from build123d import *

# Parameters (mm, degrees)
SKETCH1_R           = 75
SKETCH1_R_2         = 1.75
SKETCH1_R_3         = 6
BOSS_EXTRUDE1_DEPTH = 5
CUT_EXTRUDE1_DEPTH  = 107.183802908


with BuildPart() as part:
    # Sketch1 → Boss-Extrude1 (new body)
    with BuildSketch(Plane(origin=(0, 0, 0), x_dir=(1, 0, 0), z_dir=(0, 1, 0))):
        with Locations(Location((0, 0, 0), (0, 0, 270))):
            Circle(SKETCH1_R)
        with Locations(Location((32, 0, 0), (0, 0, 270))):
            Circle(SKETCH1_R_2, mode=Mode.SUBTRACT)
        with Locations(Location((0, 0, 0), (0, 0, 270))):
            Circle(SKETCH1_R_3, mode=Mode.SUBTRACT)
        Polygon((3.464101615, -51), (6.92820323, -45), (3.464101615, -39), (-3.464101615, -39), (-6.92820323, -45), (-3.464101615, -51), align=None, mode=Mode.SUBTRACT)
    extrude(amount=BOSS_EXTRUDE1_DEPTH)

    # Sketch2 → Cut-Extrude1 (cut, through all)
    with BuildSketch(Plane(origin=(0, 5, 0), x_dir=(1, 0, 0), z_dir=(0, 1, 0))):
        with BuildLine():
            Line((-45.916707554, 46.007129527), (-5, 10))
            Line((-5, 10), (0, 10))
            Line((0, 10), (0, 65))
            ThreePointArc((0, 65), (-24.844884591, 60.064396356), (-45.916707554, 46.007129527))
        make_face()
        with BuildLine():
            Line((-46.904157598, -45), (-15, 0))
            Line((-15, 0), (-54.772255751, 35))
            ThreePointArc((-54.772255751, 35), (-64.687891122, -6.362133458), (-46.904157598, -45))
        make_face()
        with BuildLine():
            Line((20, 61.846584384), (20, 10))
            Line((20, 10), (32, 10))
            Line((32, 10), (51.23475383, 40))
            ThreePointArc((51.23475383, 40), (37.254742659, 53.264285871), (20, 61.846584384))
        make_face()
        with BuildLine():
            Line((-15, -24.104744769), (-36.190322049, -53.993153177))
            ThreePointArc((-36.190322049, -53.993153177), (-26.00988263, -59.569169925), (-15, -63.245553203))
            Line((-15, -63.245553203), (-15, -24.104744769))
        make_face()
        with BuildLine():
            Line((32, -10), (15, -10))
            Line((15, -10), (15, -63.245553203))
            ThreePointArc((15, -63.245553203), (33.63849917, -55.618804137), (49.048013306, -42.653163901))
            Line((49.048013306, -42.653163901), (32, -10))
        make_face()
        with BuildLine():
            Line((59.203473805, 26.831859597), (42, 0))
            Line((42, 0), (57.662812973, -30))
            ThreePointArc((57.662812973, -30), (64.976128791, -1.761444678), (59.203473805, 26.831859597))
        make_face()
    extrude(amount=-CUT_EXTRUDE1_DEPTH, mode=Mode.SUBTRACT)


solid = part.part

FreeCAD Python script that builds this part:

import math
import FreeCAD as App
import Part
import Sketcher
Q = App.Units.Quantity


def add_polygon(sketch, points):
    """Adds a closed chain of lines whose ends are joined by coincident constraints."""
    first, n = sketch.GeometryCount, len(points)
    for a, b in zip(points, points[1:] + points[:1]):
        sketch.addGeometry(Part.LineSegment(App.Vector(*a, 0), App.Vector(*b, 0)), False)
    for i in range(n):
        sketch.addConstraint(Sketcher.Constraint("Coincident", first + i, 2, first + (i + 1) % n, 1))

doc = App.newDocument("Part")
body = doc.addObject("PartDesign::Body", "Body")

sketch1 = body.newObject("Sketcher::SketchObject", "Sketch")
sketch1.AttachmentSupport = (doc.getObject("XZ_Plane"), [""])
sketch1.MapMode = "FlatFace"
sketch1.addGeometry(Part.Circle(App.Vector(0, 0, 0), App.Vector(0, 0, 1), 75), False)
sketch1.addGeometry(Part.Circle(App.Vector(0, 0, 0), App.Vector(0, 0, 1), 6), False)
add_polygon(sketch1, [(6.9, 45), (3.5, 51), (-3.5, 51), (-6.9, 45), (-3.5, 39), (3.5, 39)])
sketch1.addGeometry(Part.Circle(App.Vector(32, 0, 0), App.Vector(0, 0, 1), 1.8), False)
sketch1.addConstraint([
    Sketcher.Constraint("Horizontal", 3),
    Sketcher.Constraint("Horizontal", 6),
    Sketcher.Constraint("Coincident", 0, 3, -1, 1),
    Sketcher.Constraint("Coincident", 1, 3, -1, 1),
    Sketcher.Constraint("Symmetric", 4, 2, 7, 2, -2),
    Sketcher.Constraint("PointOnObject", 8, 3, -1),
    Sketcher.Constraint("Parallel", 2, 5),
    Sketcher.Constraint("Parallel", 4, 7),
    Sketcher.Constraint("Vertical", 3, 2, 5, 2),
    Sketcher.Constraint("Vertical", 2, 2, 6, 2),
    Sketcher.Constraint("Diameter", 0, Q("150 mm")),
    Sketcher.Constraint("Diameter", 1, Q("12 mm")),
    Sketcher.Constraint("Diameter", 8, Q("3.5 mm")),
    Sketcher.Constraint("Angle", 2, Q("120 deg")),
    Sketcher.Constraint("DistanceX", -1, 1, 8, 3, Q("32 mm")),
    Sketcher.Constraint("DistanceY", -1, 1, 2, 2, Q("51 mm")),
    Sketcher.Constraint("DistanceY", -1, 1, 4, 2, Q("45 mm")),
    Sketcher.Constraint("DistanceX", -1, 1, 2, 2, Q("3.464102 mm")),
])
pad1 = body.newObject("PartDesign::Pad", "Pad")
pad1.Profile = sketch1
pad1.Length = 5
pad1.Reversed = True

sketch2 = body.newObject("Sketcher::SketchObject", "Sketch001")
sketch2.AttachmentSupport = (doc.getObject("XZ_Plane"), [""])
sketch2.MapMode = "FlatFace"
sketch2.AttachmentOffset = App.Placement(App.Vector(0, 0, -5), App.Rotation())
sketch2.addGeometry([
    Part.LineSegment(App.Vector(-46, -46, 0), App.Vector(-5, -10, 0)),
    Part.LineSegment(App.Vector(-5, -10, 0), App.Vector(0, -10, 0)),
    Part.LineSegment(App.Vector(0, -10, 0), App.Vector(0, -65, 0)),
    Part.ArcOfCircle(Part.Circle(App.Vector(0, 0, 0), App.Vector(0, 0, 1), 65), math.radians(-135), math.radians(-90)),
    Part.LineSegment(App.Vector(-47, 45, 0), App.Vector(-15, 0, 0)),
    Part.LineSegment(App.Vector(-15, 0, 0), App.Vector(-55, -35, 0)),
    Part.ArcOfCircle(Part.Circle(App.Vector(0, 0, 0), App.Vector(0, 0, 1), 65), math.radians(136), math.radians(213)),
    Part.LineSegment(App.Vector(20, -62, 0), App.Vector(20, -10, 0)),
    Part.LineSegment(App.Vector(20, -10, 0), App.Vector(32, -10, 0)),
    Part.LineSegment(App.Vector(32, -10, 0), App.Vector(51, -40, 0)),
    Part.ArcOfCircle(Part.Circle(App.Vector(0, 0, 0), App.Vector(0, 0, 1), 65), math.radians(-72), math.radians(-38)),
    Part.LineSegment(App.Vector(-15, 24, 0), App.Vector(-36, 54, 0)),
    Part.ArcOfCircle(Part.Circle(App.Vector(0, 0, 0), App.Vector(0, 0, 1), 65), math.radians(103), math.radians(124)),
    Part.LineSegment(App.Vector(-15, 63, 0), App.Vector(-15, 24, 0)),
    Part.LineSegment(App.Vector(32, 10, 0), App.Vector(15, 10, 0)),
    Part.LineSegment(App.Vector(15, 10, 0), App.Vector(15, 63, 0)),
    Part.ArcOfCircle(Part.Circle(App.Vector(0, 0, 0), App.Vector(0, 0, 1), 65), math.radians(41), math.radians(77)),
    Part.LineSegment(App.Vector(49, 43, 0), App.Vector(32, 10, 0)),
    Part.LineSegment(App.Vector(59, -27, 0), App.Vector(42, 0, 0)),
    Part.LineSegment(App.Vector(42, 0, 0), App.Vector(58, 30, 0)),
    Part.ArcOfCircle(Part.Circle(App.Vector(0, 0, 0), App.Vector(0, 0, 1), 65), math.radians(-24), math.radians(27)),
], False)
sketch2.addConstraint([
    Sketcher.Constraint("Coincident", 0, 2, 1, 1),
    Sketcher.Constraint("Coincident", 1, 2, 2, 1),
    Sketcher.Constraint("Coincident", 2, 2, 3, 2),
    Sketcher.Constraint("Coincident", 3, 1, 0, 1),
    Sketcher.Constraint("Coincident", 4, 2, 5, 1),
    Sketcher.Constraint("Coincident", 5, 2, 6, 2),
    Sketcher.Constraint("Coincident", 6, 1, 4, 1),
    Sketcher.Constraint("Coincident", 7, 2, 8, 1),
    Sketcher.Constraint("Coincident", 8, 2, 9, 1),
    Sketcher.Constraint("Coincident", 9, 2, 10, 2),
    Sketcher.Constraint("Coincident", 10, 1, 7, 1),
    Sketcher.Constraint("Coincident", 11, 2, 12, 2),
    Sketcher.Constraint("Coincident", 12, 1, 13, 1),
    Sketcher.Constraint("Coincident", 13, 2, 11, 1),
    Sketcher.Constraint("Coincident", 14, 2, 15, 1),
    Sketcher.Constraint("Coincident", 15, 2, 16, 2),
    Sketcher.Constraint("Coincident", 16, 1, 17, 1),
    Sketcher.Constraint("Coincident", 17, 2, 14, 1),
    Sketcher.Constraint("Coincident", 18, 2, 19, 1),
    Sketcher.Constraint("Coincident", 19, 2, 20, 2),
    Sketcher.Constraint("Coincident", 20, 1, 18, 1),
    Sketcher.Constraint("Horizontal", 1),
    Sketcher.Constraint("Vertical", 2),
    Sketcher.Constraint("Vertical", 7),
    Sketcher.Constraint("Horizontal", 8),
    Sketcher.Constraint("Vertical", 13),
    Sketcher.Constraint("Horizontal", 14),
    Sketcher.Constraint("Vertical", 15),
    Sketcher.Constraint("Coincident", 3, 3, -1, 1),
    Sketcher.Constraint("Coincident", 6, 3, -1, 1),
    Sketcher.Constraint("Coincident", 10, 3, -1, 1),
    Sketcher.Constraint("Coincident", 12, 3, -1, 1),
    Sketcher.Constraint("Coincident", 16, 3, -1, 1),
    Sketcher.Constraint("Coincident", 20, 3, -1, 1),
    Sketcher.Constraint("Equal", 3, 6),
    Sketcher.Constraint("Equal", 6, 10),
    Sketcher.Constraint("Equal", 10, 12),
    Sketcher.Constraint("Equal", 12, 16),
    Sketcher.Constraint("Equal", 16, 20),
    Sketcher.Constraint("Symmetric", 8, 2, 17, 2, -1),
    Sketcher.Constraint("PointOnObject", 1, 2, -2),
    Sketcher.Constraint("PointOnObject", 4, 2, -1),
    Sketcher.Constraint("PointOnObject", 18, 2, -1),
    Sketcher.Constraint("Parallel", 0, 5),
    Sketcher.Constraint("Parallel", 4, 11),
    Sketcher.Constraint("Parallel", 9, 18),
    Sketcher.Constraint("Parallel", 17, 19),
    Sketcher.Constraint("Horizontal", 1, 2, 7, 2),
    Sketcher.Constraint("Horizontal", 12, 1, 15, 2),
    Sketcher.Constraint("Vertical", 4, 2, 12, 1),
    Sketcher.Constraint("Radius", 3, Q("65 mm")),
    Sketcher.Constraint("DistanceX", 1, 1, 1, 2, Q("5 mm")),
    Sketcher.Constraint("DistanceX", 8, 1, 8, 2, Q("12 mm")),
    Sketcher.Constraint("DistanceX", 14, 2, 14, 1, Q("17 mm")),
    Sketcher.Constraint("DistanceY", 2, 2, 2, 1, Q("55 mm")),
    Sketcher.Constraint("DistanceX", 4, 2, -1, 1, Q("15 mm")),
    Sketcher.Constraint("DistanceY", 5, 2, -1, 1, Q("35 mm")),
    Sketcher.Constraint("DistanceY", -1, 1, 6, 1, Q("45 mm")),
    Sketcher.Constraint("DistanceY", 9, 2, -1, 1, Q("40 mm")),
    Sketcher.Constraint("DistanceX", -1, 1, 18, 2, Q("42 mm")),
    Sketcher.Constraint("DistanceY", -1, 1, 19, 2, Q("30 mm")),
    Sketcher.Constraint("DistanceY", 13, 2, 13, 1, Q("39.140808 mm")),
])
pocket1 = body.newObject("PartDesign::Pocket", "Pocket")
pocket1.Profile = sketch2
pocket1.Type = "ThroughAll"
pocket1.Reversed = True

doc.recompute()
